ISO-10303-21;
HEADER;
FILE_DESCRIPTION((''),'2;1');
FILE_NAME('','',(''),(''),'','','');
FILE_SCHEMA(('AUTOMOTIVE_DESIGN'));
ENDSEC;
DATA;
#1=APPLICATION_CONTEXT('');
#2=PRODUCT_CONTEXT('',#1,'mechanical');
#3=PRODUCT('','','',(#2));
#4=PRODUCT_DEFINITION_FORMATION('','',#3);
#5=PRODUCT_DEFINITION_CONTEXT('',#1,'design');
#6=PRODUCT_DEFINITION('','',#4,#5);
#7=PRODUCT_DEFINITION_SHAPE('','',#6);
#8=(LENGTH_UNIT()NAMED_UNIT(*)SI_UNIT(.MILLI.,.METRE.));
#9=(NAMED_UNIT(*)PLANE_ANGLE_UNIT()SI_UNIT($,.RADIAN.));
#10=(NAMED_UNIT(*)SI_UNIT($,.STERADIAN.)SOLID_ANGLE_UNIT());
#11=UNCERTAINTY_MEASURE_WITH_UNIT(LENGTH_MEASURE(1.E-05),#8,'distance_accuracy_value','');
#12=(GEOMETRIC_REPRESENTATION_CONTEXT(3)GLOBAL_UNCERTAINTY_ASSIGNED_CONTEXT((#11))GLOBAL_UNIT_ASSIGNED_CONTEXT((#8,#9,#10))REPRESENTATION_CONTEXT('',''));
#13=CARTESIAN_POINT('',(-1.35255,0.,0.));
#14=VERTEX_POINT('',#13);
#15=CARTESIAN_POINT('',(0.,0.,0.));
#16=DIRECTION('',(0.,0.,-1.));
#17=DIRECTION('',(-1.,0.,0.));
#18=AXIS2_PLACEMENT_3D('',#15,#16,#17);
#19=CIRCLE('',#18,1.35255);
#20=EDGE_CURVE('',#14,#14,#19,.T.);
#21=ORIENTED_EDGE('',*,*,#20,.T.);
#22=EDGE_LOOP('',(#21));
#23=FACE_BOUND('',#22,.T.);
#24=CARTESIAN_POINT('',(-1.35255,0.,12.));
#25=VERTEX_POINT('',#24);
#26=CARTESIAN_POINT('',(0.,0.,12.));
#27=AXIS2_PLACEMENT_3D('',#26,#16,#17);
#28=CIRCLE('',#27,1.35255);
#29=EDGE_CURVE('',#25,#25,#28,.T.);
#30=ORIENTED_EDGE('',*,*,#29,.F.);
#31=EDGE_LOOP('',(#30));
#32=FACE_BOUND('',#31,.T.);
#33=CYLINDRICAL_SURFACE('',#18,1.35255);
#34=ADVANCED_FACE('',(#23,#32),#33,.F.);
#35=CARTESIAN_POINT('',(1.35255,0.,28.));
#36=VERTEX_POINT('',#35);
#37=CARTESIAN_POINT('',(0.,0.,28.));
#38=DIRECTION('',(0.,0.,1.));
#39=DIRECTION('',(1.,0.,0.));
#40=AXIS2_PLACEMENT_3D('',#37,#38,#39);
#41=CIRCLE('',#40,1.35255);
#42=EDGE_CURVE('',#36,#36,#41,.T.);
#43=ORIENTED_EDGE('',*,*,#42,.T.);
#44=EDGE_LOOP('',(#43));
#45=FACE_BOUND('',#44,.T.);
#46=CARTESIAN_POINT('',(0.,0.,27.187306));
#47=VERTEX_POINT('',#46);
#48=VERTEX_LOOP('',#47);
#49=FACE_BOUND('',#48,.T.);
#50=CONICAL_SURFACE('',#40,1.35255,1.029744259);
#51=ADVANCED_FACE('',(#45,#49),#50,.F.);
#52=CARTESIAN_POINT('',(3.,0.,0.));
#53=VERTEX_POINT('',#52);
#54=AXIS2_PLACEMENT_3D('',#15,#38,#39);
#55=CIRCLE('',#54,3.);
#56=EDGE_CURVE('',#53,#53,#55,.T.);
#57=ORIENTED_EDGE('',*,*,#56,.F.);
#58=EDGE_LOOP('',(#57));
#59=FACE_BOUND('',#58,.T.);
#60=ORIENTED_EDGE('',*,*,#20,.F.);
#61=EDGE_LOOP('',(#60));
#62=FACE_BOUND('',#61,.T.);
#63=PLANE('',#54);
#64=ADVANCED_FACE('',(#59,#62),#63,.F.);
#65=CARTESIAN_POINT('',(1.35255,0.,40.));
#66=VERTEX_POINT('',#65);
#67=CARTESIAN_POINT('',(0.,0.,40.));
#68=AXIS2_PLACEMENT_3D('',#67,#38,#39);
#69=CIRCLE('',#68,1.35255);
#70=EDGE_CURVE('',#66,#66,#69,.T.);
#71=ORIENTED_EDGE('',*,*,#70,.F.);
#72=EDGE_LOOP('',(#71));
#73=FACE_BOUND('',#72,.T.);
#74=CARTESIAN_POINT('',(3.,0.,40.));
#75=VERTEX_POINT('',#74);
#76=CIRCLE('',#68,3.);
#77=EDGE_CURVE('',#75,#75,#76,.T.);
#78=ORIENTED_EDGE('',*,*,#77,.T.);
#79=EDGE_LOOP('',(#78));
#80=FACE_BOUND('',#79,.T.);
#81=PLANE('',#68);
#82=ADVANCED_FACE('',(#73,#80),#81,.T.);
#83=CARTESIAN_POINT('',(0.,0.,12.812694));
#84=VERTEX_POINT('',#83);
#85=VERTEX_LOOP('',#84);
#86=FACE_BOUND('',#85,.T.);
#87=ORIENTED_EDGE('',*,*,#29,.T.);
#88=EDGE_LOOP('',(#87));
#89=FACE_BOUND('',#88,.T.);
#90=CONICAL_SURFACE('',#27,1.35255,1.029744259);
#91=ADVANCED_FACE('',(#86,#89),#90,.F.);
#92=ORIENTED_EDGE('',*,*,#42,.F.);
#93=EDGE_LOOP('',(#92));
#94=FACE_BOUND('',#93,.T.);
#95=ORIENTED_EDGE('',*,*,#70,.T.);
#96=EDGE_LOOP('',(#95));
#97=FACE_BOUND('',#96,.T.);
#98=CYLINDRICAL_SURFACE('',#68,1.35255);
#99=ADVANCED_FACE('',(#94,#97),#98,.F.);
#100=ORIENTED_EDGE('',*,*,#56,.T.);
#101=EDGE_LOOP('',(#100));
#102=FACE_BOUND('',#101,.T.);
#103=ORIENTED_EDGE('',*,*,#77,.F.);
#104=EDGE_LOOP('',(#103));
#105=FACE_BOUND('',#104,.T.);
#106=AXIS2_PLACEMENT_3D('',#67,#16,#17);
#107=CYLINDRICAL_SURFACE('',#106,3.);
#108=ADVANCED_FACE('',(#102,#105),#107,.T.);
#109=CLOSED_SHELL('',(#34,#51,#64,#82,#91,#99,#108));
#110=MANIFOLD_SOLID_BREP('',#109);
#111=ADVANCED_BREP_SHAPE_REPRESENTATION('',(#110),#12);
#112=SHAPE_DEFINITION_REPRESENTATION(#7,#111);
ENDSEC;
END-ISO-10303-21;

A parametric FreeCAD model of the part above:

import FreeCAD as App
import Part
import Sketcher
Q = App.Units.Quantity

doc = App.newDocument("Part")
body = doc.addObject("PartDesign::Body", "Body")

# Sketch on XY plane
sketch1 = body.newObject("Sketcher::SketchObject", "Sketch")
sketch1.AttachmentSupport = (doc.getObject("XY_Plane"), [""])
sketch1.MapMode = "FlatFace"
sketch1.addGeometry(Part.Circle(App.Vector(0, 0, 0), App.Vector(0, 0, 1), 3), False)
sketch1.addConstraint(Sketcher.Constraint("Coincident", 0, 3, -1, 1))
sketch1.addConstraint(Sketcher.Constraint("Diameter", 0, Q("6 mm")))
pad1 = body.newObject("PartDesign::Pad", "Pad")
pad1.Profile = sketch1
pad1.Length = 40

# Sketch on XY plane
sketch2 = body.newObject("Sketcher::SketchObject", "Sketch001")
sketch2.AttachmentSupport = (doc.getObject("XY_Plane"), [""])
sketch2.MapMode = "FlatFace"
sketch2.addGeometry(Part.Circle(App.Vector(0, 0, 0), App.Vector(0, 0, 1), 1.4), False)
sketch2.addConstraint(Sketcher.Constraint("Coincident", 0, 3, -1, 1))
sketch2.addConstraint(Sketcher.Constraint("Diameter", 0, Q("2.7051 mm")))
doc.recompute()
hole = body.newObject("PartDesign::Hole", "Hole")
hole.Profile = sketch2
hole.ThreadType = "None"
hole.Diameter = 2.7051
hole.DepthType = "Dimension"
hole.Depth = 12
hole.DrillPoint = "Angled"
hole.DrillPointAngle = 118
hole.Reversed = True

# Sketch on XY plane
sketch3 = body.newObject("Sketcher::SketchObject", "Sketch002")
sketch3.AttachmentSupport = (doc.getObject("XY_Plane"), [""])
sketch3.MapMode = "FlatFace"
sketch3.AttachmentOffset = App.Placement(App.Vector(0, 0, 40), App.Rotation())
sketch3.addGeometry(Part.Circle(App.Vector(0, 0, 0), App.Vector(0, 0, 1), 1.4), False)
sketch3.addConstraint(Sketcher.Constraint("Coincident", 0, 3, -1, 1))
sketch3.addConstraint(Sketcher.Constraint("Diameter", 0, Q("2.7051 mm")))
doc.recompute()
hole2 = body.newObject("PartDesign::Hole", "Hole001")
hole2.Profile = sketch3
hole2.ThreadType = "None"
hole2.Diameter = 2.7051
hole2.DepthType = "Dimension"
hole2.Depth = 12
hole2.DrillPoint = "Angled"
hole2.DrillPointAngle = 118

doc.recompute()
